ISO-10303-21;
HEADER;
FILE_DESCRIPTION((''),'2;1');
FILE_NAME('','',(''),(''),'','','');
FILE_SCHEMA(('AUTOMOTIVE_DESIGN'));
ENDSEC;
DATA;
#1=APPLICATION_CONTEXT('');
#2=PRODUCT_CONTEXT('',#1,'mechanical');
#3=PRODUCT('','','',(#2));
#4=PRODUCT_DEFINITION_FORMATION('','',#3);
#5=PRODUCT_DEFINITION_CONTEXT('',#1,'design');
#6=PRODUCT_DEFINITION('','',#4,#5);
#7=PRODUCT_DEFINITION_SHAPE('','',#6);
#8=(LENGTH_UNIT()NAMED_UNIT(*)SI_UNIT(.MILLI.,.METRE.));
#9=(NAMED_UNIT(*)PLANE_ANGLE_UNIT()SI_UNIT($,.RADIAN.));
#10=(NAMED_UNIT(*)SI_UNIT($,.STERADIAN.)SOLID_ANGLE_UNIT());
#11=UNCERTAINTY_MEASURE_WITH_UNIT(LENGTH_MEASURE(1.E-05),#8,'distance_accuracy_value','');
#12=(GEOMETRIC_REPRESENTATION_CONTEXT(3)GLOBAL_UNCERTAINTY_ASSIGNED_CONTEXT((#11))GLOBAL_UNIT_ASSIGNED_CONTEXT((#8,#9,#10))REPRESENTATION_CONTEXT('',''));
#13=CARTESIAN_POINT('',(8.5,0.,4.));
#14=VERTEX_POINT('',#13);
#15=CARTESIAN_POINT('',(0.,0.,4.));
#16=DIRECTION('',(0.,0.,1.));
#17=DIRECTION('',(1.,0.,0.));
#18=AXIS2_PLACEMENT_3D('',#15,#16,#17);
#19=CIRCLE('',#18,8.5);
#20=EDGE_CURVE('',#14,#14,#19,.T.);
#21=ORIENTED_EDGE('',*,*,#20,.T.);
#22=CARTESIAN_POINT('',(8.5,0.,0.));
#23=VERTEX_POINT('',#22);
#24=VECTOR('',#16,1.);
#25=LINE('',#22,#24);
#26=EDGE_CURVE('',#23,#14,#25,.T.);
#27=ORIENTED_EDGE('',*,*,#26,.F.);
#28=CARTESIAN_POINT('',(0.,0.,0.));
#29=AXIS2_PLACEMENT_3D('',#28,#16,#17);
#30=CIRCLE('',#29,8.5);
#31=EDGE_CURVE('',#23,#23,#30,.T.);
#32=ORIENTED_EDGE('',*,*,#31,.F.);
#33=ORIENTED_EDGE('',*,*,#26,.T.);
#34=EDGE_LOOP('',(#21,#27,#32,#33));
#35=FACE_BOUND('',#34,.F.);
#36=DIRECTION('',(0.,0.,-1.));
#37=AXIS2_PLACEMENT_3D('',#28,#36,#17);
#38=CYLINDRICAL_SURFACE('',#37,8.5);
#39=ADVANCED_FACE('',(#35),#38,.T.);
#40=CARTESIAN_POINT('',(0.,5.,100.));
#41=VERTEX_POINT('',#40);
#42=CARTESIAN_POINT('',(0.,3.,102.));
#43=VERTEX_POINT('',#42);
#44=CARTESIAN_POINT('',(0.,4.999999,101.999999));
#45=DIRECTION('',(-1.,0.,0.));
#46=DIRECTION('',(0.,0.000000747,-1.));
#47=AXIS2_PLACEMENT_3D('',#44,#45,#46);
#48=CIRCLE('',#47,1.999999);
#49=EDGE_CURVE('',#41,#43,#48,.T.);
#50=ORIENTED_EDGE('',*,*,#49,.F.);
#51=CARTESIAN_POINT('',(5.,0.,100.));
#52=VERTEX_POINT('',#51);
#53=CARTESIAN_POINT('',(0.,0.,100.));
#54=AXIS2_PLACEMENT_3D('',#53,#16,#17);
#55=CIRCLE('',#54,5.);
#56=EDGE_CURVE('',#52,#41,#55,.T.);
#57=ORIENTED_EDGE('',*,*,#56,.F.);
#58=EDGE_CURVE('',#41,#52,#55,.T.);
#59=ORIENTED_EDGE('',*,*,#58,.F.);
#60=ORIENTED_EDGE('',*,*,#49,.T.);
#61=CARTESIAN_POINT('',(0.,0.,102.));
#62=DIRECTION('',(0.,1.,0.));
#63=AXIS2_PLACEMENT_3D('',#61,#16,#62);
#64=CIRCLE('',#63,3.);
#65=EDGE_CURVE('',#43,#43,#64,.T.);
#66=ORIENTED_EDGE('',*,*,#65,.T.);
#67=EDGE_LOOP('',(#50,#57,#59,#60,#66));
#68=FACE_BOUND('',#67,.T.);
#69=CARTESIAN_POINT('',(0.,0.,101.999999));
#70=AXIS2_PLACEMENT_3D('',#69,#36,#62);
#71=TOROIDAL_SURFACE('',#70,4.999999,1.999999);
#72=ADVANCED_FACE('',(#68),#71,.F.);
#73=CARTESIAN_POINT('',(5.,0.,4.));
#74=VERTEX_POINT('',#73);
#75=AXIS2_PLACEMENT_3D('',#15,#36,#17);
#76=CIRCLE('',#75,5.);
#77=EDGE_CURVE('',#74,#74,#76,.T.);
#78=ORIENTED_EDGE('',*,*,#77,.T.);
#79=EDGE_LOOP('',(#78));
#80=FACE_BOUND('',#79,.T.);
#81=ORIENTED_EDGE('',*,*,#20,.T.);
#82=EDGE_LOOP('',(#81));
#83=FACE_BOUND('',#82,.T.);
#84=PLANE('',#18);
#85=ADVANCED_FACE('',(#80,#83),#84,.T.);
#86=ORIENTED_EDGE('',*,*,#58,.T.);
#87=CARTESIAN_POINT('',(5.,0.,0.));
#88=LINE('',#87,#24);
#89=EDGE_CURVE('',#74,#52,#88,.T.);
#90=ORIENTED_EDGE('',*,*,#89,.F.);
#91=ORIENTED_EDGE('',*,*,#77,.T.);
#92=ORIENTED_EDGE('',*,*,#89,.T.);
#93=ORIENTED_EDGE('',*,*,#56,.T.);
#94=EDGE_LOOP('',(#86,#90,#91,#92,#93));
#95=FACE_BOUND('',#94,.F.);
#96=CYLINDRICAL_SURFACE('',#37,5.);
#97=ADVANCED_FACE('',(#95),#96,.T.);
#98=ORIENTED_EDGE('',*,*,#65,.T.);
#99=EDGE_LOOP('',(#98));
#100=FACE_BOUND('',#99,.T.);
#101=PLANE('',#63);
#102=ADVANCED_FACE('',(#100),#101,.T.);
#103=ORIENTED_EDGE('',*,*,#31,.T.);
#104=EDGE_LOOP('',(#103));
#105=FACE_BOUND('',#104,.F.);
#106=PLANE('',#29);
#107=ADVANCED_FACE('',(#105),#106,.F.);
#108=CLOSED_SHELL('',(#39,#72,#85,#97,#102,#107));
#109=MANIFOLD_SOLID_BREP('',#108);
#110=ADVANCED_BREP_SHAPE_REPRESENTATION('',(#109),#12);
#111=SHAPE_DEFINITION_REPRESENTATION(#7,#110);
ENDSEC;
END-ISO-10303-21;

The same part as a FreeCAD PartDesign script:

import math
import FreeCAD as App
import Part
import Sketcher
from FreeCAD import Vector

doc = App.newDocument("Part")
body = doc.addObject("PartDesign::Body", "Body")

# Sketch on XY plane
sketch1 = doc.addObject("Sketcher::SketchObject", "Sketch")
body.addObject(sketch1)
sketch1.AttachmentSupport = (doc.XY_Plane, [""])
sketch1.MapMode = "FlatFace"
sketch1.addGeometry(Part.Circle(Vector(0, 0, 0), Vector(0, 0, 1), 8), False)
sketch1.addConstraint([
    Sketcher.Constraint("Coincident", 0, 3, -1, 1),
    Sketcher.Constraint("Diameter", 0, 17.0),
])
pad1 = doc.addObject("PartDesign::Pad", "Pad")
body.addObject(pad1)
pad1.Profile = sketch1
pad1.Length = 4

# Sketch on XY plane
sketch2 = doc.addObject("Sketcher::SketchObject", "Sketch001")
body.addObject(sketch2)
sketch2.AttachmentSupport = (doc.XY_Plane, [""])
sketch2.MapMode = "FlatFace"
sketch2.addGeometry(Part.Circle(Vector(0, 0, 0), Vector(0, 0, 1), 5), False)
sketch2.addConstraint([
    Sketcher.Constraint("Coincident", 0, 3, -1, 1),
    Sketcher.Constraint("Diameter", 0, 10.0),
])
pad2 = doc.addObject("PartDesign::Pad", "Pad001")
body.addObject(pad2)
pad2.Profile = sketch2
pad2.Length = 100

# Sketch on YZ plane
sketch3 = doc.addObject("Sketcher::SketchObject", "Sketch002")
body.addObject(sketch3)
sketch3.AttachmentSupport = (doc.YZ_Plane, [""])
sketch3.MapMode = "FlatFace"
sketch3.addGeometry([
    Part.LineSegment(Vector(0, 102, 0), Vector(0, 100, 0)),
    Part.LineSegment(Vector(0, 100, 0), Vector(5, 100, 0)),
    Part.ArcOfCircle(Part.Circle(Vector(5, 102, 0), Vector(0, 0, 1), 2), math.radians(180), math.radians(270)),
    Part.LineSegment(Vector(3, 102, 0), Vector(0, 102, 0)),
], False)
sketch3.addConstraint([
    Sketcher.Constraint("Coincident", 0, 2, 1, 1),
    Sketcher.Constraint("Tangent", 1, 2, 2, 2),
    Sketcher.Constraint("Coincident", 2, 1, 3, 1),
    Sketcher.Constraint("Coincident", 3, 2, 0, 1),
    Sketcher.Constraint("Vertical", 0),
    Sketcher.Constraint("Horizontal", 1),
    Sketcher.Constraint("Horizontal", 3),
    Sketcher.Constraint("PointOnObject", 0, 2, -2),
    Sketcher.Constraint("Radius", 2, 1.999999),
    Sketcher.Constraint("DistanceX", 1, 1, 1, 2, 5.0),
    Sketcher.Constraint("DistanceY", 0, 2, 0, 1, 2.0),
    Sketcher.Constraint("DistanceY", -1, 1, 2, 3, 101.999999),
])
revolution = doc.addObject("PartDesign::Revolution", "Revolution")
body.addObject(revolution)
revolution.Profile = sketch3
revolution.ReferenceAxis = (sketch3, ["V_Axis"])
revolution.Angle = 360

doc.recompute()
